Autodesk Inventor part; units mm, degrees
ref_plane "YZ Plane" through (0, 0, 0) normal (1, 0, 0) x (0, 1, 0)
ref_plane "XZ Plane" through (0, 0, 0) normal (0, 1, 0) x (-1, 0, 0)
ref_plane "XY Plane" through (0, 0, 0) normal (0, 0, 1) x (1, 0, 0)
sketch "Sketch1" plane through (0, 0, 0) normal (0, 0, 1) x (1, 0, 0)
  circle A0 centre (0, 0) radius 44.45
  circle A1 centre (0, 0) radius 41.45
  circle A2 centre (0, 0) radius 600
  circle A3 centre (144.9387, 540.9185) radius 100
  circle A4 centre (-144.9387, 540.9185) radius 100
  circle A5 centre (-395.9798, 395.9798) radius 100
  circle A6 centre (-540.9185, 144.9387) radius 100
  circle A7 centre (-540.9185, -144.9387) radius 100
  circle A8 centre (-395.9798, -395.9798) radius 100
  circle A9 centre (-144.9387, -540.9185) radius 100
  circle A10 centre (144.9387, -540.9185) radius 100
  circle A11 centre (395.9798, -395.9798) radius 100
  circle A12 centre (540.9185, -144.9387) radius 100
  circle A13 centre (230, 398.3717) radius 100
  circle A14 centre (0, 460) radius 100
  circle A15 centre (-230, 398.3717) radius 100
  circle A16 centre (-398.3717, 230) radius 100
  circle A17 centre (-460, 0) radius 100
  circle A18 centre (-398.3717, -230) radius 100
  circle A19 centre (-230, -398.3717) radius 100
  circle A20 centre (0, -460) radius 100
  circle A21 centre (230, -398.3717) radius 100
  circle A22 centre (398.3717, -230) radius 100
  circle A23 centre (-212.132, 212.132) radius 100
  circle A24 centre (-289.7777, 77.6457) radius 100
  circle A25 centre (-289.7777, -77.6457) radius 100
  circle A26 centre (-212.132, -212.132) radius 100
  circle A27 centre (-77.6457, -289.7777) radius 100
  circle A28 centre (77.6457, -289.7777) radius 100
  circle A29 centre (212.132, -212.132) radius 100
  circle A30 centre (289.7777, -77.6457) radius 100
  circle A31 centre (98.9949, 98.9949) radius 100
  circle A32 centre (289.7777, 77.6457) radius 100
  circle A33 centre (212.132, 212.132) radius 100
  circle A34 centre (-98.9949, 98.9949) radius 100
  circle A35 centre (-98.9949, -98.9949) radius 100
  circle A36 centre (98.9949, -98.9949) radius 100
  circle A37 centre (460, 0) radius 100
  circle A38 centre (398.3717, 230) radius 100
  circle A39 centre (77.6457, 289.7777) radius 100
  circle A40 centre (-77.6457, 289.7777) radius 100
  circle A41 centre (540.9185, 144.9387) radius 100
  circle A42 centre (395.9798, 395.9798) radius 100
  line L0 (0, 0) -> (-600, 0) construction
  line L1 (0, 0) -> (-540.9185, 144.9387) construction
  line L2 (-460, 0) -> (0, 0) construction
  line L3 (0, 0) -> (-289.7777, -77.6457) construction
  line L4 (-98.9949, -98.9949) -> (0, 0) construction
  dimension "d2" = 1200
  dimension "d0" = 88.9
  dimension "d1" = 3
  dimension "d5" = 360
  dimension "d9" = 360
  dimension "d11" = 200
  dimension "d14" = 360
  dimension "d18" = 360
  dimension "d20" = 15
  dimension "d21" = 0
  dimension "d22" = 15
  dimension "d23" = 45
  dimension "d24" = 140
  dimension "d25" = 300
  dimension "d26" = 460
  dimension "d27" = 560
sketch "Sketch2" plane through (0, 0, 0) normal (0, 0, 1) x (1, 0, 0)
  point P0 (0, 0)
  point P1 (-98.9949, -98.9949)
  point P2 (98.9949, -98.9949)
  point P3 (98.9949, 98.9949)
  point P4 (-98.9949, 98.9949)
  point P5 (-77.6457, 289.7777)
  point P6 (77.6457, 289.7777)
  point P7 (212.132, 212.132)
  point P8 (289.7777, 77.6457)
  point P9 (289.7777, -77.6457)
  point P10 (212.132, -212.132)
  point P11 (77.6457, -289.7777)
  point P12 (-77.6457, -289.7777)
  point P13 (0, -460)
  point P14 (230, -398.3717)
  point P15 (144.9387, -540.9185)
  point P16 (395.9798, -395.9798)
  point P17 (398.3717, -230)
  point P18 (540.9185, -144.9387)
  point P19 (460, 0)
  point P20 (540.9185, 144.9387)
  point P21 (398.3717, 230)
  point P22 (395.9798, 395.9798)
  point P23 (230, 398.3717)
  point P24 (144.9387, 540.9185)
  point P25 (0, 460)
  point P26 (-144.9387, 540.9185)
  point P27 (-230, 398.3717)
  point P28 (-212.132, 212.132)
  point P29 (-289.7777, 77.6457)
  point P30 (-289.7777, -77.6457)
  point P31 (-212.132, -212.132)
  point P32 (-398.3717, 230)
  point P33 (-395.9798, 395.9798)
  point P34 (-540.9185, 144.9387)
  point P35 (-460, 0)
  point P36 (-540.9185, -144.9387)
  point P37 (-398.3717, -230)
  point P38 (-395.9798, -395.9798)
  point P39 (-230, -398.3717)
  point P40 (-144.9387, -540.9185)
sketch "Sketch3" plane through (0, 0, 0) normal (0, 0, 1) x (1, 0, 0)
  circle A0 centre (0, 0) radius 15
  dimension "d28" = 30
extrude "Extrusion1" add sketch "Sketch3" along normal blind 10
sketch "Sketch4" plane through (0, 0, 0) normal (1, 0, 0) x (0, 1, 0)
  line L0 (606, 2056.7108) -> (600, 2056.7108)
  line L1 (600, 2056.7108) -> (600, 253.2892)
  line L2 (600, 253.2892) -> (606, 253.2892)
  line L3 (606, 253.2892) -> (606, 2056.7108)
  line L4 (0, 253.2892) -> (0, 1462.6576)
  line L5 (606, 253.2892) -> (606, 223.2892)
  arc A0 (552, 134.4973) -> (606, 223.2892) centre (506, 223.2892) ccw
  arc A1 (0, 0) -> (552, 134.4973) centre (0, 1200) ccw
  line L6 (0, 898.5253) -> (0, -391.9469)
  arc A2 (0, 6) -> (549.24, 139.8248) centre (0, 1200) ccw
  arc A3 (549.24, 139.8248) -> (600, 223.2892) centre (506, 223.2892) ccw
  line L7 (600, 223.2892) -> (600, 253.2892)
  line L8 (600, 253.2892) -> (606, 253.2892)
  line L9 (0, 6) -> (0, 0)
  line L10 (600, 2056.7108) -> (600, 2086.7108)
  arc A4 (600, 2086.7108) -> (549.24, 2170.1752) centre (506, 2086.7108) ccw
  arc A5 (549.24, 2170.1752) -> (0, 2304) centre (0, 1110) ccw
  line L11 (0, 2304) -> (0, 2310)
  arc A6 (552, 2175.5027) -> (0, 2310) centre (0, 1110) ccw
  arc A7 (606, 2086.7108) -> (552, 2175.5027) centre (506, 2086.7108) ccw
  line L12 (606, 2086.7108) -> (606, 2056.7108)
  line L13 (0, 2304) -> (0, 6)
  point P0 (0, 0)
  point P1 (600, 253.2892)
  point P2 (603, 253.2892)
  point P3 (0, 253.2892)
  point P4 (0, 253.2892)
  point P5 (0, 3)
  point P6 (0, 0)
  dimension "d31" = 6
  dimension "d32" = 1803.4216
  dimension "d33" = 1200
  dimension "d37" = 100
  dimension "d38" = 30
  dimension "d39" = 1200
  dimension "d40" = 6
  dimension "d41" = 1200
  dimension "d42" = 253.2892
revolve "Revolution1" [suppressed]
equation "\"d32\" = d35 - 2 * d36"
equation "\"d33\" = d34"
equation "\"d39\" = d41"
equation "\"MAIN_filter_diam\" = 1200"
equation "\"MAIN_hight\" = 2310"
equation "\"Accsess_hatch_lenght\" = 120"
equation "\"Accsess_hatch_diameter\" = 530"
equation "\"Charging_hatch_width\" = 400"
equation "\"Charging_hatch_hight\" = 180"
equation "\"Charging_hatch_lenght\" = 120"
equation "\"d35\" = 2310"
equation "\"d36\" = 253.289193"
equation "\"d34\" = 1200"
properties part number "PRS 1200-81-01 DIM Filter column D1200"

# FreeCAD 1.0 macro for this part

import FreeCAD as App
import Part
import Sketcher

doc = App.newDocument("Part")
body = doc.addObject("PartDesign::Body", "Body")

# Sketch on XY plane
sketch1 = doc.addObject("Sketcher::SketchObject", "Sketch")
body.addObject(sketch1)
sketch1.AttachmentSupport = (doc.XY_Plane, [""])
sketch1.MapMode = "FlatFace"
sketch1.addGeometry(Part.Circle(App.Vector(0, 0, 0), App.Vector(0, 0, 1), 15), False)
sketch1.addConstraint([
    Sketcher.Constraint("Coincident", 0, 3, -1, 1),
    Sketcher.Constraint("Diameter", 0, 30.0),
])
pad1 = doc.addObject("PartDesign::Pad", "Pad")
body.addObject(pad1)
pad1.Profile = sketch1
pad1.Length = 10

doc.recompute()
